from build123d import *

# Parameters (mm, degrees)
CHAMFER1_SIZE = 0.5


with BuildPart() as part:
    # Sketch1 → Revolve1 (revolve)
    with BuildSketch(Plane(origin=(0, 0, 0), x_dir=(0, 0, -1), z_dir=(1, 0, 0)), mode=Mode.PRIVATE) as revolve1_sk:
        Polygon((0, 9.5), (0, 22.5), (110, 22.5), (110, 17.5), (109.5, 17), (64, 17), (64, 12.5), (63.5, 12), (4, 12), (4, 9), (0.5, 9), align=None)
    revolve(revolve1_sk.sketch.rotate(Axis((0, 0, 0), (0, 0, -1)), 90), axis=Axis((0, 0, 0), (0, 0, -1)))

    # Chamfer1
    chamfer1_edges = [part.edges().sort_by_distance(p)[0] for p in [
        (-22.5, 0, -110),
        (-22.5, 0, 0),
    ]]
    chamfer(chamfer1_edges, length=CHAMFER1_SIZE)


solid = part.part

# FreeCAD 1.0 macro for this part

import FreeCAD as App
import Part
import Sketcher
Q = App.Units.Quantity


def edges_at(feature, points):
    """Names of the edges that pass closest to the given points."""
    edges = feature.Shape.Edges
    near = lambda p: min(range(len(edges)), key=lambda i: edges[i].distToShape(Part.Vertex(*p))[0])
    return sorted({f"Edge{near(p) + 1}" for p in points})


def add_polygon(sketch, points):
    """Adds a closed chain of lines whose ends are joined by coincident constraints."""
    first, n = sketch.GeometryCount, len(points)
    for a, b in zip(points, points[1:] + points[:1]):
        sketch.addGeometry(Part.LineSegment(App.Vector(*a, 0), App.Vector(*b, 0)), False)
    for i in range(n):
        sketch.addConstraint(Sketcher.Constraint("Coincident", first + i, 2, first + (i + 1) % n, 1))

doc = App.newDocument("Part")
params = doc.addObject("Spreadsheet::Sheet", "Params")
for row, (alias, value) in enumerate([
    ("sketch1_width", "13 mm"),
    ("sketch1_width2", "3 mm"),
    ("sketch1_width3", "5 mm"),
    ("sketch1_height", "110 mm"),
    ("sketch1_width4", "4.5 mm"),
    ("revolution_angle", "360 deg"),
    ("chamfer_size", "0.5 mm"),
], start=1):
    params.set(f"A{row}", alias)
    params.set(f"B{row}", "=" + value)
    params.setAlias(f"B{row}", alias)

body = doc.addObject("PartDesign::Body", "Body")

sketch1 = doc.addObject("Sketcher::SketchObject", "Sketch")
body.addObject(sketch1)
sketch1.AttachmentSupport = (doc.YZ_Plane, [""])
sketch1.MapMode = "FlatFace"
add_polygon(sketch1, [(22.5, 0), (9.5, 0), (9, -0.5), (9, -4), (12, -4), (12, -63.5), (12.5, -64), (17, -64), (17, -109.5), (17.5, -110), (22.5, -110)])
sketch1.addConstraint(Sketcher.Constraint("Horizontal", 0))
sketch1.addConstraint(Sketcher.Constraint("Vertical", 2))
sketch1.addConstraint(Sketcher.Constraint("Horizontal", 3))
sketch1.addConstraint(Sketcher.Constraint("Vertical", 4))
sketch1.addConstraint(Sketcher.Constraint("Horizontal", 6))
sketch1.addConstraint(Sketcher.Constraint("Vertical", 7))
sketch1.addConstraint(Sketcher.Constraint("Horizontal", 9))
sketch1.addConstraint(Sketcher.Constraint("Vertical", 10))
sketch1.addConstraint(Sketcher.Constraint("PointOnObject", 0, 2, -1))
sketch1.addConstraint(Sketcher.Constraint("Perpendicular", 1, 5))
sketch1.addConstraint(Sketcher.Constraint("Parallel", 5, 8))
sketch1.addConstraint(Sketcher.Constraint("Equal", 1, 5))
sketch1.addConstraint(Sketcher.Constraint("Equal", 5, 8))
sketch1.addConstraint(Sketcher.Constraint("DistanceX", 0, 2, 0, 1, 13.0))
sketch1.addConstraint(Sketcher.Constraint("DistanceX", 3, 1, 3, 2, 3.0))
sketch1.addConstraint(Sketcher.Constraint("DistanceX", 9, 1, 9, 2, 5.0))
sketch1.addConstraint(Sketcher.Constraint("DistanceY", 10, 1, 10, 2, 110.0))
sketch1.addConstraint(Sketcher.Constraint("Angle", 1, Q("-135 deg")))
sketch1.addConstraint(Sketcher.Constraint("DistanceX", 6, 1, 6, 2, 4.5))
sketch1.addConstraint(Sketcher.Constraint("DistanceY", 2, 2, 2, 1, 3.5))
sketch1.addConstraint(Sketcher.Constraint("DistanceY", 4, 2, 4, 1, 59.5))
sketch1.addConstraint(Sketcher.Constraint("DistanceX", -1, 1, 1, 2, 9.0))
sketch1.setExpression("Constraints[24]", "Params.sketch1_width")
sketch1.setExpression("Constraints[25]", "Params.sketch1_width2")
sketch1.setExpression("Constraints[26]", "Params.sketch1_width3")
sketch1.setExpression("Constraints[27]", "Params.sketch1_height")
sketch1.setExpression("Constraints[29]", "Params.sketch1_width4")
revolution = doc.addObject("PartDesign::Revolution", "Revolution")
body.addObject(revolution)
revolution.Profile = sketch1
revolution.ReferenceAxis = (sketch1, ["V_Axis"])
revolution.setExpression("Angle", "Params.revolution_angle")
doc.recompute()

chamfer = doc.addObject("PartDesign::Chamfer", "Chamfer")
body.addObject(chamfer)
chamfer.Base = (revolution, edges_at(revolution, [(-22.5, 0, -110), (-22.5, 0, 0)]))
chamfer.setExpression("Size", "Params.chamfer_size")

doc.recompute()
